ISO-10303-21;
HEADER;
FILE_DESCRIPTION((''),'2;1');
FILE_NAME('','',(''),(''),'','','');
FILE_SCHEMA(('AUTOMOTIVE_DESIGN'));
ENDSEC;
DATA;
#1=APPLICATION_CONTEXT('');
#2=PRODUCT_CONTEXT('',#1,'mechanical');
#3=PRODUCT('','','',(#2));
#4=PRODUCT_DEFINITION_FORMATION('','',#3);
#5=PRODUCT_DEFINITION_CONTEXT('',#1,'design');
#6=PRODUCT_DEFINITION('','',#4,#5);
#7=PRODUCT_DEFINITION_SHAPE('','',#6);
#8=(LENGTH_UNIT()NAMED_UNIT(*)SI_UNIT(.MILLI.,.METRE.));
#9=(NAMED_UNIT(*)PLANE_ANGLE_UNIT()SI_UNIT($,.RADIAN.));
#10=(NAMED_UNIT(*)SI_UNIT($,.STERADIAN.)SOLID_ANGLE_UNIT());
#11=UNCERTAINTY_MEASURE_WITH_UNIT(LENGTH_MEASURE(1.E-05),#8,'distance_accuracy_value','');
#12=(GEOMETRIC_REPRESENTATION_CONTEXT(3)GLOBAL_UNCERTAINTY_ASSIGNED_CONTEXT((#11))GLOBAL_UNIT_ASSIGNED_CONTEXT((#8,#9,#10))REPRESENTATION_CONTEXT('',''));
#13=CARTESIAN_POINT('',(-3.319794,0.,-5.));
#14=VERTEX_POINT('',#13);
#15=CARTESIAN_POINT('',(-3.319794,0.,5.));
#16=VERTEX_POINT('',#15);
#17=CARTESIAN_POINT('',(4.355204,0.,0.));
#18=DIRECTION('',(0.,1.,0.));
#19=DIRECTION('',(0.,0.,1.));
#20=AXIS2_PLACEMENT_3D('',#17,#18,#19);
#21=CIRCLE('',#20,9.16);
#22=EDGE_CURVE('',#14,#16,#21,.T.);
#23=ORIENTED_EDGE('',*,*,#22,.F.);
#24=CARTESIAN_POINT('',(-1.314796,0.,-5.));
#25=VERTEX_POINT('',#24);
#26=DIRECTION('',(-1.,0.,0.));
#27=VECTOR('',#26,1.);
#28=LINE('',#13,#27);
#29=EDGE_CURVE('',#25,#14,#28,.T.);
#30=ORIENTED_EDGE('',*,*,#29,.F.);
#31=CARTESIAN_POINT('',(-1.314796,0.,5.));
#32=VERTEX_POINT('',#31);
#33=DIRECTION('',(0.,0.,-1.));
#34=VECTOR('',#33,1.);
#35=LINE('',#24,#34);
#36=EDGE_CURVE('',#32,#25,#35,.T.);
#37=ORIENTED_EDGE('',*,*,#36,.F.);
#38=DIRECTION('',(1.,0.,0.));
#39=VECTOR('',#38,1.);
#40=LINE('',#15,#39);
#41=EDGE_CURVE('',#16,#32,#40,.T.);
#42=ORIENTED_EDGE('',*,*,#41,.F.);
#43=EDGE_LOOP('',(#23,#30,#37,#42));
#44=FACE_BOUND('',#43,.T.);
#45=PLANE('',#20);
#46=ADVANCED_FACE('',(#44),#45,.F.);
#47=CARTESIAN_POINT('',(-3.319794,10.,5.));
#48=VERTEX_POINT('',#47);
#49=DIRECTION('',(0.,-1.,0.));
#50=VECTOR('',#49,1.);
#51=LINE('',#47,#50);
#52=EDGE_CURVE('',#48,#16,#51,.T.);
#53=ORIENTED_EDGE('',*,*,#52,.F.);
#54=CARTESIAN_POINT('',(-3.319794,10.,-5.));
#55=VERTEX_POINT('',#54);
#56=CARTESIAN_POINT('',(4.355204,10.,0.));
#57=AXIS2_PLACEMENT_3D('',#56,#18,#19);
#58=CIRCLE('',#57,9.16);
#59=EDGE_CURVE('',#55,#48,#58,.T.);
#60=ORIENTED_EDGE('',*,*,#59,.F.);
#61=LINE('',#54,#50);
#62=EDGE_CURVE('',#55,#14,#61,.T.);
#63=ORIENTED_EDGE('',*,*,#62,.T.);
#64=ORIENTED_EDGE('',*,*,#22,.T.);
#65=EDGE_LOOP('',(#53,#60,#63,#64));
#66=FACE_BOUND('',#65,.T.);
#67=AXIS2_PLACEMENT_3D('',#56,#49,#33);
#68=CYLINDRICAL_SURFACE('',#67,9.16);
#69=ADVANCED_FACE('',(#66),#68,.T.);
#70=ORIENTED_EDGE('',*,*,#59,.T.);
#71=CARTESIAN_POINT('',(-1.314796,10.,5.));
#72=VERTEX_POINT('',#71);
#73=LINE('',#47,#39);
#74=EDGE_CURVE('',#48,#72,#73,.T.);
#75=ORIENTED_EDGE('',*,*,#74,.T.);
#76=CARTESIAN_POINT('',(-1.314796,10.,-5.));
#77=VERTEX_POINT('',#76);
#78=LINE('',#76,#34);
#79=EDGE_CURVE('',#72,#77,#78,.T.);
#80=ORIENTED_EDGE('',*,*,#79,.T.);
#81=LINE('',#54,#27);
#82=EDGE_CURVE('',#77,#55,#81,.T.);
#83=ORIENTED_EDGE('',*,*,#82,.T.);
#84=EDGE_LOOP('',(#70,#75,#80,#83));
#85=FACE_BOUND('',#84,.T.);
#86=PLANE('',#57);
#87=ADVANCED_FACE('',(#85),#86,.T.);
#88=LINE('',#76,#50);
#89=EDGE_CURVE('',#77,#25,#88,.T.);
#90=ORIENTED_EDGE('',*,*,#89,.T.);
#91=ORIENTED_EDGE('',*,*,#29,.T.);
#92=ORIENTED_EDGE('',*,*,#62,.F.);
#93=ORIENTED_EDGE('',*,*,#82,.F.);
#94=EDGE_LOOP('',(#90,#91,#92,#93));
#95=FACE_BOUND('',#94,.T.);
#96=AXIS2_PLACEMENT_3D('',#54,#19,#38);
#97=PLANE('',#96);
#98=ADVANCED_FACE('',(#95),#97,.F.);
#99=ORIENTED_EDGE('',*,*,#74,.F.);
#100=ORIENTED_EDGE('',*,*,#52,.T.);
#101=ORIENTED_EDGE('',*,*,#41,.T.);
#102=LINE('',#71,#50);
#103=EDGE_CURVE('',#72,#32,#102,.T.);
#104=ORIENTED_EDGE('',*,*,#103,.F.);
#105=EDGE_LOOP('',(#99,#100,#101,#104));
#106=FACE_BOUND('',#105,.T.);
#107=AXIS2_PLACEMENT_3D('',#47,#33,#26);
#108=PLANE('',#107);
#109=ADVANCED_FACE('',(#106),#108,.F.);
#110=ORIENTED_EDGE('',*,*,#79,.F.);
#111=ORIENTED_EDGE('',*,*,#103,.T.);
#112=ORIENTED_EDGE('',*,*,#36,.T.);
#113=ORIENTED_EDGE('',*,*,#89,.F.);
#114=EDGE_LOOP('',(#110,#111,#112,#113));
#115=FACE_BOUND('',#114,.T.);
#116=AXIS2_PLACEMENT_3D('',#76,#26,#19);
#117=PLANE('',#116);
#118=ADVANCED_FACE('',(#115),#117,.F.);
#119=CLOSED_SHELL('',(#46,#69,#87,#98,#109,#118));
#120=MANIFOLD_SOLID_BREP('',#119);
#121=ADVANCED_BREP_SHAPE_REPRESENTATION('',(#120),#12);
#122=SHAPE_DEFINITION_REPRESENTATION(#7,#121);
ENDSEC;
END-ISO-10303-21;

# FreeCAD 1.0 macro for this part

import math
import FreeCAD as App
import Part
import Sketcher
from FreeCAD import Vector
Q = App.Units.Quantity

doc = App.newDocument("Part")
body = doc.addObject("PartDesign::Body", "Body")

# Sketch on XZ plane
sketch1 = doc.addObject("Sketcher::SketchObject", "Sketch")
body.addObject(sketch1)
sketch1.AttachmentSupport = (doc.XZ_Plane, [""])
sketch1.MapMode = "FlatFace"
sketch1.addGeometry([
    Part.LineSegment(Vector(-1.3, -5, 0), Vector(-3.3, -5, 0)),
    Part.ArcOfCircle(Part.Circle(Vector(4.4, 0, 0), Vector(0, 0, 1), 9.2), math.radians(147), math.radians(213)),
    Part.LineSegment(Vector(-3.3, 5, 0), Vector(-1.3, 5, 0)),
    Part.LineSegment(Vector(-1.3, 5, 0), Vector(-1.3, -5, 0)),
], False)
sketch1.addConstraint([
    Sketcher.Constraint("Coincident", 0, 2, 1, 2),
    Sketcher.Constraint("Coincident", 1, 1, 2, 1),
    Sketcher.Constraint("Coincident", 2, 2, 3, 1),
    Sketcher.Constraint("Coincident", 3, 2, 0, 1),
    Sketcher.Constraint("Horizontal", 0),
    Sketcher.Constraint("Horizontal", 2),
    Sketcher.Constraint("Vertical", 3),
    Sketcher.Constraint("Symmetric", 0, 2, 1, 1, -1),
    Sketcher.Constraint("DistanceY", 3, 2, 3, 1, Q("10 mm")),
    Sketcher.Constraint("Radius", 1, Q("9.16 mm")),
    Sketcher.Constraint("DistanceX", 0, 2, 0, 1, Q("2.004998 mm")),
    Sketcher.Constraint("DistanceX", -1, 1, 1, 3, Q("4.355204 mm")),
])
pad1 = doc.addObject("PartDesign::Pad", "Pad")
body.addObject(pad1)
pad1.Profile = sketch1
pad1.Length = 10
pad1.Reversed = True

doc.recompute()
